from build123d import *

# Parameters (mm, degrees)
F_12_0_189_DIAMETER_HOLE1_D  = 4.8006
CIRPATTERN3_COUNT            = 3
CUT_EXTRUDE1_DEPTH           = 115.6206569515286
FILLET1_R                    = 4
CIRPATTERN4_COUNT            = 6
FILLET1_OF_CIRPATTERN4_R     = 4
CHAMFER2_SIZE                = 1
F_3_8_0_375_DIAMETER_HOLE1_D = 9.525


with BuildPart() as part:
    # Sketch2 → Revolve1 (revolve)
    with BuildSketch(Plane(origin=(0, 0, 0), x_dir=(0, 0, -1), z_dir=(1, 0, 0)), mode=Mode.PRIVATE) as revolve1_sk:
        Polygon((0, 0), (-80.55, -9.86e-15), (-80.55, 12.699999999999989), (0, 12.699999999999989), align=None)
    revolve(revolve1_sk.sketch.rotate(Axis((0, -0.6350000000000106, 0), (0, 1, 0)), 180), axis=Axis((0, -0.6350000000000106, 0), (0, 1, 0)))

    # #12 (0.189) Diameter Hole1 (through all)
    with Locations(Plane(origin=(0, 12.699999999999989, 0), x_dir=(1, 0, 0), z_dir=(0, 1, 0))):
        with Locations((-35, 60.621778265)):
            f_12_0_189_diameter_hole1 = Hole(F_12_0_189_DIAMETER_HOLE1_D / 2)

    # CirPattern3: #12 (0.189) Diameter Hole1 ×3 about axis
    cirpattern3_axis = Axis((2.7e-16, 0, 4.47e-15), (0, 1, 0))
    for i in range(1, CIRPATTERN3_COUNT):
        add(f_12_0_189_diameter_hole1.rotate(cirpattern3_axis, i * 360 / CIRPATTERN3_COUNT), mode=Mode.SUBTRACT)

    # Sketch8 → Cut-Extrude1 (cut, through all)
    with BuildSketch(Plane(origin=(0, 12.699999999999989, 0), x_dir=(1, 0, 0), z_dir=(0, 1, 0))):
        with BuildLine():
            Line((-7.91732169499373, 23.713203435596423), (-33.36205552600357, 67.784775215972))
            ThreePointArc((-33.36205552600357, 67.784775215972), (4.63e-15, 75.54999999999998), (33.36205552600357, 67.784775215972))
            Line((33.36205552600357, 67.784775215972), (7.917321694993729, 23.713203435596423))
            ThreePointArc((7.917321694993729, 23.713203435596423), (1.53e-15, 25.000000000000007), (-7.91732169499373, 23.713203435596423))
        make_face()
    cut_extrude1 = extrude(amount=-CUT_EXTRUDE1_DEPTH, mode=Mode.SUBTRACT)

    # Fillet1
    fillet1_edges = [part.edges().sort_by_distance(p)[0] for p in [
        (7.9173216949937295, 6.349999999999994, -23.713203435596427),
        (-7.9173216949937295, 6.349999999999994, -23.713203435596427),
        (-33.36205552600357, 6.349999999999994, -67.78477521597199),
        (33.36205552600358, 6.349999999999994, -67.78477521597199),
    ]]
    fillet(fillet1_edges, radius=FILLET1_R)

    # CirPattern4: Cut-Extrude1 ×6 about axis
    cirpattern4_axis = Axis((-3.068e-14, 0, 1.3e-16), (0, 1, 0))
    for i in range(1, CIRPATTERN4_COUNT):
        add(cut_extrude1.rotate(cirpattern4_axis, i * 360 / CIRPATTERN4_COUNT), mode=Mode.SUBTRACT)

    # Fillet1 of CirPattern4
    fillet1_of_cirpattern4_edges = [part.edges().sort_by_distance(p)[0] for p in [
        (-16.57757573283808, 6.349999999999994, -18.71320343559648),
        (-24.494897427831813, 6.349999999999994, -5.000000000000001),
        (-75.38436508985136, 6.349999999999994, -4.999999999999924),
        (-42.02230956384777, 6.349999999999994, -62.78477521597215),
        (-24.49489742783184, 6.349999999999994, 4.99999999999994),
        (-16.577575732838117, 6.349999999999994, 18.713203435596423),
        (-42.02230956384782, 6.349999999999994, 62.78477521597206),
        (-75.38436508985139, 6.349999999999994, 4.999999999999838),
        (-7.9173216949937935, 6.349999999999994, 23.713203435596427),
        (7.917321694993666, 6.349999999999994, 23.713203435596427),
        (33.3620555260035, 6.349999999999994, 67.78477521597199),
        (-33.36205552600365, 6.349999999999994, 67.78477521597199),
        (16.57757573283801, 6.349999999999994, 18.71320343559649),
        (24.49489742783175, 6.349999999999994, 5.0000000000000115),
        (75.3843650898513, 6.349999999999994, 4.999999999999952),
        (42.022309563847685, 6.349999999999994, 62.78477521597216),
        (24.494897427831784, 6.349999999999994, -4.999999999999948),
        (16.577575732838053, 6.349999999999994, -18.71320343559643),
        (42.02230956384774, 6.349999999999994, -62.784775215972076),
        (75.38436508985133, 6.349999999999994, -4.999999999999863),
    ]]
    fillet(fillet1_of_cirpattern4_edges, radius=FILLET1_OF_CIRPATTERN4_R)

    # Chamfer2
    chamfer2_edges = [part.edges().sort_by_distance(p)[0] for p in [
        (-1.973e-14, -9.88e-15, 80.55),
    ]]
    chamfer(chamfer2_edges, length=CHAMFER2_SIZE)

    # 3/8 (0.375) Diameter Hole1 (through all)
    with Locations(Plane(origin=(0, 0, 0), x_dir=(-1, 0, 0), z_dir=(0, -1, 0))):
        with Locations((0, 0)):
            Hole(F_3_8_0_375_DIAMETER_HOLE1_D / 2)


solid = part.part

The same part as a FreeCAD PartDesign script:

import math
import FreeCAD as App
import Part
import Sketcher

V = App.Vector
Q = App.Units.Quantity


def edges_at(feature, points):
    """Names of the edges that pass closest to the given points."""
    edges = feature.Shape.Edges
    near = lambda p: min(range(len(edges)), key=lambda i: edges[i].distToShape(Part.Vertex(*p))[0])
    return sorted({f"Edge{near(p) + 1}" for p in points})

doc = App.newDocument("Part")
body = doc.addObject("PartDesign::Body", "Body")

# Sketch on YZ plane
sketch1 = body.newObject("Sketcher::SketchObject", "Sketch")
sketch1.AttachmentSupport = (doc.getObject("YZ_Plane"), [""])
sketch1.MapMode = "FlatFace"
sketch1.addGeometry(Part.LineSegment(V(0, 80.55, 0), V(0, 0, 0)), False)
sketch1.addGeometry(Part.LineSegment(V(0, 0, 0), V(12.7, 0, 0)), False)
sketch1.addGeometry(Part.LineSegment(V(12.7, 0, 0), V(12.7, 80.55, 0)), False)
sketch1.addGeometry(Part.LineSegment(V(12.7, 80.55, 0), V(0, 80.55, 0)), False)
sketch1.addConstraint(Sketcher.Constraint("Coincident", 0, 2, 1, 1))
sketch1.addConstraint(Sketcher.Constraint("Coincident", 1, 2, 2, 1))
sketch1.addConstraint(Sketcher.Constraint("Coincident", 2, 2, 3, 1))
sketch1.addConstraint(Sketcher.Constraint("Coincident", 3, 2, 0, 1))
sketch1.addConstraint(Sketcher.Constraint("Vertical", 0))
sketch1.addConstraint(Sketcher.Constraint("Horizontal", 1))
sketch1.addConstraint(Sketcher.Constraint("Vertical", 2))
sketch1.addConstraint(Sketcher.Constraint("Horizontal", 3))
sketch1.addConstraint(Sketcher.Constraint("Coincident", 0, 2, -1, 1))
sketch1.addConstraint(Sketcher.Constraint("DistanceX", 1, 1, 1, 2, Q("12.7 mm")))
sketch1.addConstraint(Sketcher.Constraint("DistanceY", 0, 2, 0, 1, Q("80.55 mm")))
revolution = body.newObject("PartDesign::Revolution", "Revolution")
revolution.Profile = sketch1
revolution.ReferenceAxis = (sketch1, ["H_Axis"])
revolution.Angle = 360

# Sketch on XZ plane
sketch2 = body.newObject("Sketcher::SketchObject", "Sketch001")
sketch2.AttachmentSupport = (doc.getObject("XZ_Plane"), [""])
sketch2.MapMode = "FlatFace"
sketch2.AttachmentOffset = App.Placement(V(0, 0, -12.7), App.Rotation())
sketch2.addGeometry(Part.Circle(V(-35, -60.621778, 0), V(0, 0, 1), 2.4003), False)
sketch2.addConstraint(Sketcher.Constraint("DistanceX", 0, 3, -1, 1, Q("35 mm")))
sketch2.addConstraint(Sketcher.Constraint("Diameter", 0, Q("4.8006 mm")))
sketch2.addConstraint(Sketcher.Constraint("DistanceY", 0, 3, -1, 1, Q("60.621778 mm")))
doc.recompute()
hole = body.newObject("PartDesign::Hole", "Hole")
hole.Profile = sketch2
hole.ThreadType = "None"
hole.Diameter = 4.8006
hole.DepthType = "ThroughAll"
hole.Reversed = True
doc.recompute()

polarpattern = body.newObject("PartDesign::PolarPattern", "PolarPattern")
polarpattern.Originals = [hole]
polarpattern.Axis = (doc.getObject("Y_Axis"), [""])
polarpattern.Angle = 360
polarpattern.Occurrences = 3
body.Tip = polarpattern

# Sketch on XZ plane
sketch3 = body.newObject("Sketcher::SketchObject", "Sketch002")
sketch3.AttachmentSupport = (doc.getObject("XZ_Plane"), [""])
sketch3.MapMode = "FlatFace"
sketch3.AttachmentOffset = App.Placement(V(0, 0, -12.7), App.Rotation())
sketch3.addGeometry(Part.LineSegment(V(-33.362056, -67.784775, 0), V(-7.917322, -23.713203, 0)), False)
sketch3.addGeometry(Part.ArcOfCircle(Part.Circle(V(0, 0, 0), V(0, 0, 1), 25), math.radians(-108.463041), math.radians(-71.536959)), False)
sketch3.addGeometry(Part.LineSegment(V(7.917322, -23.713203, 0), V(33.362056, -67.784775, 0)), False)
sketch3.addGeometry(Part.ArcOfCircle(Part.Circle(V(0, 0, 0), V(0, 0, 1), 75.55), math.radians(-116.205315), math.radians(-63.794685)), False)
sketch3.addConstraint(Sketcher.Constraint("Coincident", 0, 2, 1, 1))
sketch3.addConstraint(Sketcher.Constraint("Coincident", 1, 2, 2, 1))
sketch3.addConstraint(Sketcher.Constraint("Coincident", 2, 2, 3, 2))
sketch3.addConstraint(Sketcher.Constraint("Coincident", 3, 1, 0, 1))
sketch3.addConstraint(Sketcher.Constraint("Coincident", 1, 3, -1, 1))
sketch3.addConstraint(Sketcher.Constraint("Coincident", 3, 3, -1, 1))
sketch3.addConstraint(Sketcher.Constraint("Horizontal", 0, 2, 1, 2))
sketch3.addConstraint(Sketcher.Constraint("Horizontal", 2, 2, 3, 1))
sketch3.addConstraint(Sketcher.Constraint("Radius", 1, Q("25 mm")))
sketch3.addConstraint(Sketcher.Constraint("Angle", 0, Q("60 deg")))
sketch3.addConstraint(Sketcher.Constraint("Radius", 3, Q("75.55 mm")))
sketch3.addConstraint(Sketcher.Constraint("DistanceX", 0, 2, -1, 1, Q("7.917322 mm")))
pocket1 = body.newObject("PartDesign::Pocket", "Pocket")
pocket1.Profile = sketch3
pocket1.Type = "ThroughAll"
pocket1.Reversed = True
doc.recompute()

fillet = body.newObject("PartDesign::Fillet", "Fillet")
fillet.Base = (pocket1, edges_at(pocket1, [
    (7.917, 6.35, -23.713),
    (-7.917, 6.35, -23.713),
    (-33.362, 6.35, -67.785),
    (33.362, 6.35, -67.785),
]))
fillet.Radius = 4
doc.recompute()

polarpattern2 = body.newObject("PartDesign::PolarPattern", "PolarPattern001")
polarpattern2.Originals = [pocket1]
polarpattern2.Axis = (doc.getObject("Y_Axis"), [""])
polarpattern2.Angle = 360
polarpattern2.Occurrences = 6
body.Tip = polarpattern2
doc.recompute()

fillet2 = body.newObject("PartDesign::Fillet", "Fillet001")
fillet2.Base = (polarpattern2, edges_at(polarpattern2, [
    (-16.578, 6.35, -18.713),
    (-24.495, 6.35, -5),
    (-75.384, 6.35, -5),
    (-42.022, 6.35, -62.785),
    (-24.495, 6.35, 5),
    (-16.578, 6.35, 18.713),
    (-42.022, 6.35, 62.785),
    (-75.384, 6.35, 5),
    (-7.917, 6.35, 23.713),
    (7.917, 6.35, 23.713),
    (33.362, 6.35, 67.785),
    (-33.362, 6.35, 67.785),
    (16.578, 6.35, 18.713),
    (24.495, 6.35, 5),
    (75.384, 6.35, 5),
    (42.022, 6.35, 62.785),
    (24.495, 6.35, -5),
    (16.578, 6.35, -18.713),
    (42.022, 6.35, -62.785),
    (75.384, 6.35, -5),
]))
fillet2.Radius = 4
doc.recompute()

chamfer = body.newObject("PartDesign::Chamfer", "Chamfer")
chamfer.Base = (fillet2, edges_at(fillet2, [(0, 0, 80.55)]))
chamfer.Size = 1

# Sketch on XZ plane
sketch4 = body.newObject("Sketcher::SketchObject", "Sketch003")
sketch4.AttachmentSupport = (doc.getObject("XZ_Plane"), [""])
sketch4.MapMode = "FlatFace"
sketch4.addGeometry(Part.Circle(V(0, 0, 0), V(0, 0, 1), 4.7625), False)
sketch4.addConstraint(Sketcher.Constraint("Coincident", 0, 3, -1, 1))
sketch4.addConstraint(Sketcher.Constraint("Diameter", 0, Q("9.525 mm")))
doc.recompute()
hole2 = body.newObject("PartDesign::Hole", "Hole001")
hole2.Profile = sketch4
hole2.ThreadType = "None"
hole2.Diameter = 9.525
hole2.DepthType = "ThroughAll"

doc.recompute()
